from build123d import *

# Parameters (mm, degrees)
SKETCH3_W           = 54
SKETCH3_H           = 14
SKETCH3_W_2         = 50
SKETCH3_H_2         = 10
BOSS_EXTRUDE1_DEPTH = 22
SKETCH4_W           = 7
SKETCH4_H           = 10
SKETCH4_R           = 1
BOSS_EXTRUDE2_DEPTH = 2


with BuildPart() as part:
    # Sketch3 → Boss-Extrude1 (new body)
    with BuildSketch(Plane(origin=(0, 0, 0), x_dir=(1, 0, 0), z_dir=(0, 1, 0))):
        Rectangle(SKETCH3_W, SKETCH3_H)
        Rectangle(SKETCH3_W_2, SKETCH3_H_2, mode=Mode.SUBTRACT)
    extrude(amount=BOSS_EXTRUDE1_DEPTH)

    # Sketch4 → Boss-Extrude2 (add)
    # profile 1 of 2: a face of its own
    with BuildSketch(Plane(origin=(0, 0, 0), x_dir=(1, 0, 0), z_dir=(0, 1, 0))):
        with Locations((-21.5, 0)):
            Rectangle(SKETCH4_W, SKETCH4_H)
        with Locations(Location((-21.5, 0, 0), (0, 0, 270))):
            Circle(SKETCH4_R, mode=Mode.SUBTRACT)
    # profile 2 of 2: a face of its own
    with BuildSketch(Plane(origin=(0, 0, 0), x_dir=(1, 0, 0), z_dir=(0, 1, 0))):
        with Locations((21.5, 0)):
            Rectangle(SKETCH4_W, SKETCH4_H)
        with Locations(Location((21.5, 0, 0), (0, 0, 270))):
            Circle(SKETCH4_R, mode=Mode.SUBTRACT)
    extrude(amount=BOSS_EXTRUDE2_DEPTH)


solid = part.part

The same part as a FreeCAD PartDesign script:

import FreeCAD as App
import Part
import Sketcher
from FreeCAD import Vector
Q = App.Units.Quantity


def add_polygon(sketch, points):
    """Adds a closed chain of lines whose ends are joined by coincident constraints."""
    first, n = sketch.GeometryCount, len(points)
    for a, b in zip(points, points[1:] + points[:1]):
        sketch.addGeometry(Part.LineSegment(App.Vector(*a, 0), App.Vector(*b, 0)), False)
    for i in range(n):
        sketch.addConstraint(Sketcher.Constraint("Coincident", first + i, 2, first + (i + 1) % n, 1))

doc = App.newDocument("Part")
body = doc.addObject("PartDesign::Body", "Body")

# Sketch on XZ plane
sketch1 = doc.addObject("Sketcher::SketchObject", "Sketch")
body.addObject(sketch1)
sketch1.AttachmentSupport = (doc.XZ_Plane, [""])
sketch1.MapMode = "FlatFace"
add_polygon(sketch1, [(-27, -7), (-27, 7), (27, 7), (27, -7)])  # lines 0-3
add_polygon(sketch1, [(25, 5), (-25, 5), (-25, -5), (25, -5)])  # lines 4-7
sketch1.addConstraint(Sketcher.Constraint("Vertical", 0))
sketch1.addConstraint(Sketcher.Constraint("Horizontal", 1))
sketch1.addConstraint(Sketcher.Constraint("Vertical", 2))
sketch1.addConstraint(Sketcher.Constraint("Horizontal", 3))
sketch1.addConstraint(Sketcher.Constraint("Horizontal", 4))
sketch1.addConstraint(Sketcher.Constraint("Vertical", 5))
sketch1.addConstraint(Sketcher.Constraint("Horizontal", 6))
sketch1.addConstraint(Sketcher.Constraint("Vertical", 7))
sketch1.addConstraint(Sketcher.Constraint("Symmetric", 0, 2, 2, 2, -1, 1))
sketch1.addConstraint(Sketcher.Constraint("Symmetric", 4, 2, 6, 2, -1, 1))
sketch1.addConstraint(Sketcher.Constraint("DistanceX", 1, 1, 1, 2, Q("54 mm")))
sketch1.addConstraint(Sketcher.Constraint("DistanceX", 4, 2, 4, 1, Q("50 mm")))
sketch1.addConstraint(Sketcher.Constraint("DistanceY", 0, 1, 0, 2, Q("14 mm")))
sketch1.addConstraint(Sketcher.Constraint("DistanceY", 5, 2, 5, 1, Q("10 mm")))
pad1 = doc.addObject("PartDesign::Pad", "Pad")
body.addObject(pad1)
pad1.Profile = sketch1
pad1.Length = 22
pad1.Reversed = True

# Sketch on XZ plane
sketch2 = doc.addObject("Sketcher::SketchObject", "Sketch001")
body.addObject(sketch2)
sketch2.AttachmentSupport = (doc.XZ_Plane, [""])
sketch2.MapMode = "FlatFace"
add_polygon(sketch2, [(-25, -5), (-25, 5), (-18, 5), (-18, -5)])  # lines 0-3
sketch2.addGeometry(Part.Circle(Vector(-21.5, 0, 0), Vector(0, 0, 1), 1), False)  # 4
add_polygon(sketch2, [(18, -5), (18, 5), (25, 5), (25, -5)])  # lines 5-8
sketch2.addGeometry(Part.Circle(Vector(21.5, 0, 0), Vector(0, 0, 1), 1), False)  # 9
sketch2.addConstraint(Sketcher.Constraint("Vertical", 0))
sketch2.addConstraint(Sketcher.Constraint("Horizontal", 1))
sketch2.addConstraint(Sketcher.Constraint("Vertical", 2))
sketch2.addConstraint(Sketcher.Constraint("Horizontal", 3))
sketch2.addConstraint(Sketcher.Constraint("Vertical", 5))
sketch2.addConstraint(Sketcher.Constraint("Horizontal", 6))
sketch2.addConstraint(Sketcher.Constraint("Vertical", 7))
sketch2.addConstraint(Sketcher.Constraint("Horizontal", 8))
sketch2.addConstraint(Sketcher.Constraint("Equal", 4, 9))
sketch2.addConstraint(Sketcher.Constraint("Symmetric", 4, 3, 9, 3, -1, 1))
sketch2.addConstraint(Sketcher.Constraint("Symmetric", 2, 2, 5, 2, -1, 1))
sketch2.addConstraint(Sketcher.Constraint("Symmetric", 0, 2, 7, 2, -1, 1))
sketch2.addConstraint(Sketcher.Constraint("PointOnObject", 4, 3, -1))
sketch2.addConstraint(Sketcher.Constraint("Horizontal", 1, 2, 5, 2))
sketch2.addConstraint(Sketcher.Constraint("Diameter", 4, Q("2 mm")))
sketch2.addConstraint(Sketcher.Constraint("DistanceX", 1, 1, 1, 2, Q("7 mm")))
sketch2.addConstraint(Sketcher.Constraint("DistanceY", 0, 1, 0, 2, Q("10 mm")))
sketch2.addConstraint(Sketcher.Constraint("DistanceX", 0, 2, -1, 1, Q("25 mm")))
sketch2.addConstraint(Sketcher.Constraint("DistanceX", 4, 3, 9, 3, Q("43 mm")))
pad2 = doc.addObject("PartDesign::Pad", "Pad001")
body.addObject(pad2)
pad2.Profile = sketch2
pad2.Length = 2
pad2.Reversed = True

doc.recompute()
